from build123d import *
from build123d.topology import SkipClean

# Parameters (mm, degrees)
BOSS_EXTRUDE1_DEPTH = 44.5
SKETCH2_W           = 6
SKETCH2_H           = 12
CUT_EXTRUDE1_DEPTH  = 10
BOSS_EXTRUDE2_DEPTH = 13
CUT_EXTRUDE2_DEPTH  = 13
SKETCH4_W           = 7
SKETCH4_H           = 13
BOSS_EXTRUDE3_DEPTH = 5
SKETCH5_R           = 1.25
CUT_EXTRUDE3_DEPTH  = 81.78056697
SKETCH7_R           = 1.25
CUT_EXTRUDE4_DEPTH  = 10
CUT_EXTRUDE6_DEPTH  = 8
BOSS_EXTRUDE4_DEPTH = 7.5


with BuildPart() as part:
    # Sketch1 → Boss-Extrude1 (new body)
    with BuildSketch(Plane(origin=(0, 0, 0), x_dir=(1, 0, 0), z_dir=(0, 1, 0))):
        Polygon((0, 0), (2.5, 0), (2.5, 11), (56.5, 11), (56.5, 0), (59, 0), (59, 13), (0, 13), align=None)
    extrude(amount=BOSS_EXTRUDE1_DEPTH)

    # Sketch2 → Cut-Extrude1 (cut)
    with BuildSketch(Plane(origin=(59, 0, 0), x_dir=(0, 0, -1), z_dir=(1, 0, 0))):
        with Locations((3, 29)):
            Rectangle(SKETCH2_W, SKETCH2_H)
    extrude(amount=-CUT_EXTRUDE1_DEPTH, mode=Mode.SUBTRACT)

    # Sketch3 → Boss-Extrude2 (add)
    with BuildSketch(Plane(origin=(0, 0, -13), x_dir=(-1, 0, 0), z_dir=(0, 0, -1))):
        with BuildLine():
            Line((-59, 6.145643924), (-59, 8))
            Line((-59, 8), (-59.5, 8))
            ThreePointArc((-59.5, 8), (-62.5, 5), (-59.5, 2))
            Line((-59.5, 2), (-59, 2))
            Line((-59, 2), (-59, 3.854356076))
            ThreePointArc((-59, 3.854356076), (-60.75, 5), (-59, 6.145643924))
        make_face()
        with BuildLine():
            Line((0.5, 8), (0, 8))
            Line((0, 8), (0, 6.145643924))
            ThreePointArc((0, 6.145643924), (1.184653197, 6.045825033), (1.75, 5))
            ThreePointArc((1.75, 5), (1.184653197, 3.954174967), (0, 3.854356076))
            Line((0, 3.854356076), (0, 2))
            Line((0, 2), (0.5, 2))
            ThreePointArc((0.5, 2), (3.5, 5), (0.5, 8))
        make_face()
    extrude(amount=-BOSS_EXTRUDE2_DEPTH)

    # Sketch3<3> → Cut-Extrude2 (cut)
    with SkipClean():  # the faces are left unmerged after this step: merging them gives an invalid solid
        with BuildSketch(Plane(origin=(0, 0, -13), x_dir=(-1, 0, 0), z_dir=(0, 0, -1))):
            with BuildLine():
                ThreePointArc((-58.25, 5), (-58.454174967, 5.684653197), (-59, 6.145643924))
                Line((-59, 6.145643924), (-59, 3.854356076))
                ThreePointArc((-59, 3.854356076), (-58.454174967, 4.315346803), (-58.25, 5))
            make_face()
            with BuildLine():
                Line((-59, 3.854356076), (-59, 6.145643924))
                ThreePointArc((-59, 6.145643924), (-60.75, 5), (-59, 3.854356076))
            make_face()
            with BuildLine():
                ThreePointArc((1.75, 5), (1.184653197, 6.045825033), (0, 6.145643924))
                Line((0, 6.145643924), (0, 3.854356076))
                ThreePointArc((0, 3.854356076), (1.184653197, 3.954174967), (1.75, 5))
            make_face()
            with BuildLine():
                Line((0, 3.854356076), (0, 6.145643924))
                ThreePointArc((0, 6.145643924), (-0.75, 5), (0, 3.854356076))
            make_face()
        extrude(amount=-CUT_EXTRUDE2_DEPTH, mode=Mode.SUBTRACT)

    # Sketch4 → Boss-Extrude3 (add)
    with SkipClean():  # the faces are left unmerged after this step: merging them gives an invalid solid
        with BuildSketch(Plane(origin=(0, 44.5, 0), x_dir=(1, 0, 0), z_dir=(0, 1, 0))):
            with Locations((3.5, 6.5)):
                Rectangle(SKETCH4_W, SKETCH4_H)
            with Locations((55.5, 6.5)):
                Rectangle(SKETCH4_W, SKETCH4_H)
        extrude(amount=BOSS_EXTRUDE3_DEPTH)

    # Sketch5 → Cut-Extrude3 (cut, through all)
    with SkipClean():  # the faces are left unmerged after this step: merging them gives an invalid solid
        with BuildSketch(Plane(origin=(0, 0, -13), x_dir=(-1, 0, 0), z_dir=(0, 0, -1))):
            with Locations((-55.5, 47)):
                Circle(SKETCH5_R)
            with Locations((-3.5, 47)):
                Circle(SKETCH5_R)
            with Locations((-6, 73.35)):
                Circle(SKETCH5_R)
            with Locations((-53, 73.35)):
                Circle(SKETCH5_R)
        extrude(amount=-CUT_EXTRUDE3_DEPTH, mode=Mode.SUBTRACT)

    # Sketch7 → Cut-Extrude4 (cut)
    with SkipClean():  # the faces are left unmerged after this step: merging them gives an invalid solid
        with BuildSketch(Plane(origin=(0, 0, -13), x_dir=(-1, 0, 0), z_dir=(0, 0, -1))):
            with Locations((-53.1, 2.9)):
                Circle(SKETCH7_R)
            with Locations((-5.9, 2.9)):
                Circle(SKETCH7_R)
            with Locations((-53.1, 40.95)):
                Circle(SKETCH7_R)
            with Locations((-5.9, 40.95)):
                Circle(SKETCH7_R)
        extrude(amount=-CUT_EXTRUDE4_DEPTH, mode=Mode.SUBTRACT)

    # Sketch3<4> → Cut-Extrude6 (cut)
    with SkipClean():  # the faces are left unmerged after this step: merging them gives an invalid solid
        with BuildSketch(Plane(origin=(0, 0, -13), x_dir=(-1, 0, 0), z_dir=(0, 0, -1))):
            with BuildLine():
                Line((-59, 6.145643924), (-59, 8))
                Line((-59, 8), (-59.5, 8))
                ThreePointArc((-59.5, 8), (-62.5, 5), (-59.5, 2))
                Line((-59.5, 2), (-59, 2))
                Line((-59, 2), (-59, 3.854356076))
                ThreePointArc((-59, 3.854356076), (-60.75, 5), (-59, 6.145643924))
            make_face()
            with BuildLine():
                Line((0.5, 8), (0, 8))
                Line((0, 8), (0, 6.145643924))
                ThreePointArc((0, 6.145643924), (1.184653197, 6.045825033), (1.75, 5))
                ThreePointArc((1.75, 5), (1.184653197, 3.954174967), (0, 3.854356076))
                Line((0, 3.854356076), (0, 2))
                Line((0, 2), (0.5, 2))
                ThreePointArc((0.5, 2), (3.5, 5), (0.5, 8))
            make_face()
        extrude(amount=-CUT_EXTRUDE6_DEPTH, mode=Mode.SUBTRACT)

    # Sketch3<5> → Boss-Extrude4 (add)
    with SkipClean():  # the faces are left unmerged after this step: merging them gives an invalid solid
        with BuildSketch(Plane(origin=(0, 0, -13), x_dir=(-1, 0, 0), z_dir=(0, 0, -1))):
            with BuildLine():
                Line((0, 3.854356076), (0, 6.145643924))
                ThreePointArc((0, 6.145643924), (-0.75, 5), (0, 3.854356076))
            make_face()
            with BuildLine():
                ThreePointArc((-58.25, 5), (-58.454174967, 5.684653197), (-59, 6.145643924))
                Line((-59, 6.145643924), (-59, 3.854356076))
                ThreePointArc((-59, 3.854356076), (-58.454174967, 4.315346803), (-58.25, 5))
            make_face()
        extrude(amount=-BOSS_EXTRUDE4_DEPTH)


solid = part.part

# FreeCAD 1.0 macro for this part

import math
import FreeCAD as App
import Part
import Sketcher

V = App.Vector


def add_polygon(sketch, points):
    """Adds a closed chain of lines whose ends are joined by coincident constraints."""
    first, n = sketch.GeometryCount, len(points)
    for a, b in zip(points, points[1:] + points[:1]):
        sketch.addGeometry(Part.LineSegment(App.Vector(*a, 0), App.Vector(*b, 0)), False)
    for i in range(n):
        sketch.addConstraint(Sketcher.Constraint("Coincident", first + i, 2, first + (i + 1) % n, 1))

doc = App.newDocument("Part")
body = doc.addObject("PartDesign::Body", "Body")

# Sketch on XZ plane
sketch1 = body.newObject("Sketcher::SketchObject", "Sketch")
sketch1.AttachmentSupport = (doc.getObject("XZ_Plane"), [""])
sketch1.MapMode = "FlatFace"
add_polygon(sketch1, [(0, 0), (2.5, 0), (2.5, -11), (56.5, -11), (56.5, 0), (59, 0), (59, -13), (0, -13)])  # lines 0-7
sketch1.addConstraint([
    Sketcher.Constraint("Horizontal", 0),
    Sketcher.Constraint("Vertical", 1),
    Sketcher.Constraint("Horizontal", 2),
    Sketcher.Constraint("Vertical", 3),
    Sketcher.Constraint("Horizontal", 4),
    Sketcher.Constraint("Vertical", 5),
    Sketcher.Constraint("Horizontal", 6),
    Sketcher.Constraint("Vertical", 7),
    Sketcher.Constraint("Coincident", 7, 2, -1, 1),
    Sketcher.Constraint("PointOnObject", 3, 2, -1),
    Sketcher.Constraint("Equal", 0, 4),
    Sketcher.Constraint("DistanceX", 2, 1, 2, 2, 54.0),
    Sketcher.Constraint("DistanceX", 6, 2, 6, 1, 59.0),
    Sketcher.Constraint("DistanceY", 1, 2, 1, 1, 11.0),
    Sketcher.Constraint("DistanceY", 5, 2, 5, 1, 13.0),
])
pad1 = body.newObject("PartDesign::Pad", "Pad")
pad1.Profile = sketch1
pad1.Length = 44.5
pad1.Reversed = True

# Sketch on YZ plane
sketch2 = body.newObject("Sketcher::SketchObject", "Sketch001")
sketch2.AttachmentSupport = (doc.getObject("YZ_Plane"), [""])
sketch2.MapMode = "FlatFace"
sketch2.AttachmentOffset = App.Placement(V(0, 0, 59), App.Rotation())
add_polygon(sketch2, [(35, 0), (23, 0), (23, -6), (35, -6)])  # lines 0-3
sketch2.addConstraint([
    Sketcher.Constraint("Horizontal", 0),
    Sketcher.Constraint("Vertical", 1),
    Sketcher.Constraint("Horizontal", 2),
    Sketcher.Constraint("Vertical", 3),
    Sketcher.Constraint("PointOnObject", 0, 2, -1),
    Sketcher.Constraint("DistanceX", 0, 2, 0, 1, 12.0),
    Sketcher.Constraint("DistanceY", 1, 2, 1, 1, 6.0),
    Sketcher.Constraint("DistanceX", -1, 1, 0, 2, 23.0),
])
pocket1 = body.newObject("PartDesign::Pocket", "Pocket")
pocket1.Profile = sketch2
pocket1.Length = 10

# Sketch on XY plane
sketch3 = body.newObject("Sketcher::SketchObject", "Sketch002")
sketch3.AttachmentSupport = (doc.getObject("XY_Plane"), [""])
sketch3.MapMode = "FlatFace"
sketch3.AttachmentOffset = App.Placement(V(0, 0, -13), App.Rotation())
sketch3.addGeometry([
    Part.LineSegment(V(59, 6.1, 0), V(59, 8, 0)),  # 0
    Part.LineSegment(V(59, 8, 0), V(59.5, 8, 0)),  # 1
    Part.ArcOfCircle(Part.Circle(V(59.5, 5, 0), V(0, 0, 1), 3), math.radians(-90), math.radians(90)),  # 2
    Part.LineSegment(V(59.5, 2, 0), V(59, 2, 0)),  # 3
    Part.LineSegment(V(59, 2, 0), V(59, 3.9, 0)),  # 4
    Part.ArcOfCircle(Part.Circle(V(59.5, 5, 0), V(0, 0, 1), 1.2), math.radians(-114), math.radians(114)),  # 5
    Part.LineSegment(V(-0.5, 8, 0), V(0, 8, 0)),  # 6
    Part.LineSegment(V(0, 8, 0), V(0, 6.1, 0)),  # 7
    Part.ArcOfCircle(Part.Circle(V(-0.5, 5, 0), V(0, 0, 1), 1.2), math.radians(66), math.radians(180)),  # 8
    Part.ArcOfCircle(Part.Circle(V(-0.5, 5, 0), V(0, 0, 1), 1.2), math.radians(180), math.radians(294)),  # 9
    Part.LineSegment(V(0, 3.9, 0), V(0, 2, 0)),  # 10
    Part.LineSegment(V(0, 2, 0), V(-0.5, 2, 0)),  # 11
    Part.ArcOfCircle(Part.Circle(V(-0.5, 5, 0), V(0, 0, 1), 3), math.radians(90), math.radians(270)),  # 12
], False)
sketch3.addConstraint([
    Sketcher.Constraint("Coincident", 0, 2, 1, 1),
    Sketcher.Constraint("Tangent", 1, 2, 2, 2),
    Sketcher.Constraint("Tangent", 2, 1, 3, 1),
    Sketcher.Constraint("Coincident", 3, 2, 4, 1),
    Sketcher.Constraint("Coincident", 4, 2, 5, 1),
    Sketcher.Constraint("Coincident", 5, 2, 0, 1),
    Sketcher.Constraint("Coincident", 6, 2, 7, 1),
    Sketcher.Constraint("Coincident", 7, 2, 8, 1),
    Sketcher.Constraint("Tangent", 8, 2, 9, 1),
    Sketcher.Constraint("Coincident", 9, 2, 10, 1),
    Sketcher.Constraint("Coincident", 10, 2, 11, 1),
    Sketcher.Constraint("Tangent", 11, 2, 12, 2),
    Sketcher.Constraint("Tangent", 12, 1, 6, 1),
    Sketcher.Constraint("Vertical", 0),
    Sketcher.Constraint("Horizontal", 1),
    Sketcher.Constraint("Horizontal", 3),
    Sketcher.Constraint("Vertical", 4),
    Sketcher.Constraint("Horizontal", 6),
    Sketcher.Constraint("Vertical", 7),
    Sketcher.Constraint("Vertical", 10),
    Sketcher.Constraint("Horizontal", 11),
    Sketcher.Constraint("Coincident", 5, 3, 2, 3),
    Sketcher.Constraint("Coincident", 12, 3, 8, 3),
    Sketcher.Constraint("Equal", 5, 8),
    Sketcher.Constraint("Equal", 8, 9),
    Sketcher.Constraint("Equal", 2, 12),
    Sketcher.Constraint("PointOnObject", 6, 2, -2),
    Sketcher.Constraint("PointOnObject", 9, 2, -2),
    Sketcher.Constraint("Horizontal", 5, 3, 8, 3),
    Sketcher.Constraint("Horizontal", 5, 2, 7, 2),
    Sketcher.Constraint("Horizontal", 12, 3, 8, 2),
    Sketcher.Constraint("Horizontal", 4, 2, 9, 2),
    Sketcher.Constraint("Radius", 2, 3.0),
    Sketcher.Constraint("Radius", 5, 1.25),
    Sketcher.Constraint("DistanceX", 1, 1, 1, 2, 0.5),
    Sketcher.Constraint("DistanceY", -1, 1, 2, 3, 5.0),
    Sketcher.Constraint("DistanceX", -1, 1, 0, 2, 59.0),
])
pad2 = body.newObject("PartDesign::Pad", "Pad001")
pad2.Profile = sketch3
pad2.Length = 13

# Sketch on XY plane
sketch4 = body.newObject("Sketcher::SketchObject", "Sketch003")
sketch4.AttachmentSupport = (doc.getObject("XY_Plane"), [""])
sketch4.MapMode = "FlatFace"
sketch4.AttachmentOffset = App.Placement(V(0, 0, -13), App.Rotation())
sketch4.addGeometry([
    Part.ArcOfCircle(Part.Circle(V(59.5, 5, 0), V(0, 0, 1), 1.3), math.radians(114), math.radians(180)),  # 0
    Part.LineSegment(V(59, 6.1, 0), V(59, 3.9, 0)),  # 1
    Part.ArcOfCircle(Part.Circle(V(59.5, 5, 0), V(0, 0, 1), 1.3), math.radians(180), math.radians(246)),  # 2
    Part.LineSegment(V(59, 3.9, 0), V(59, 6.1, 0)),  # 3
    Part.ArcOfCircle(Part.Circle(V(59.5, 5, 0), V(0, 0, 1), 1.2), math.radians(-114), math.radians(114)),  # 4
    Part.ArcOfCircle(Part.Circle(V(-0.5, 5, 0), V(0, 0, 1), 1.2), math.radians(66), math.radians(180)),  # 5
    Part.LineSegment(V(0, 6.1, 0), V(0, 3.9, 0)),  # 6
    Part.ArcOfCircle(Part.Circle(V(-0.5, 5, 0), V(0, 0, 1), 1.2), math.radians(180), math.radians(294)),  # 7
    Part.LineSegment(V(0, 3.9, 0), V(0, 6.1, 0)),  # 8
    Part.ArcOfCircle(Part.Circle(V(-0.5, 5, 0), V(0, 0, 1), 1.2), math.radians(-66), math.radians(66)),  # 9
], False)
sketch4.addConstraint([
    Sketcher.Constraint("Coincident", 0, 1, 1, 1),
    Sketcher.Constraint("Coincident", 1, 2, 2, 2),
    Sketcher.Constraint("Tangent", 2, 1, 0, 2),
    Sketcher.Constraint("Coincident", 3, 1, 4, 1),
    Sketcher.Constraint("Coincident", 4, 2, 3, 2),
    Sketcher.Constraint("Coincident", 5, 1, 6, 1),
    Sketcher.Constraint("Coincident", 6, 2, 7, 2),
    Sketcher.Constraint("Tangent", 7, 1, 5, 2),
    Sketcher.Constraint("Coincident", 8, 1, 9, 1),
    Sketcher.Constraint("Coincident", 9, 2, 8, 2),
    Sketcher.Constraint("Vertical", 1),
    Sketcher.Constraint("Vertical", 3),
    Sketcher.Constraint("Vertical", 6),
    Sketcher.Constraint("Vertical", 8),
    Sketcher.Constraint("Coincident", 4, 3, 0, 3),
    Sketcher.Constraint("Coincident", 9, 3, 5, 3),
    Sketcher.Constraint("Coincident", 3, 1, 1, 2),
    Sketcher.Constraint("Coincident", 8, 1, 6, 2),
    Sketcher.Constraint("Equal", 0, 2),
    Sketcher.Constraint("Equal", 4, 5),
    Sketcher.Constraint("Equal", 5, 7),
    Sketcher.Constraint("PointOnObject", 5, 1, -2),
    Sketcher.Constraint("Horizontal", 4, 3, 5, 3),
    Sketcher.Constraint("Horizontal", 9, 3, 2, 1),
    Sketcher.Constraint("Horizontal", 4, 2, 5, 1),
    Sketcher.Constraint("Horizontal", 2, 1, 7, 1),
    Sketcher.Constraint("Radius", 0, 1.25),
    Sketcher.Constraint("DistanceY", -1, 1, 0, 3, 5.0),
    Sketcher.Constraint("DistanceX", -1, 1, 0, 1, 59.0),
    Sketcher.Constraint("DistanceX", 5, 3, 4, 3, 60.0),
])
pocket2 = body.newObject("PartDesign::Pocket", "Pocket001")
pocket2.Profile = sketch4
pocket2.Length = 13
pocket2.Reversed = True

# Sketch on XZ plane
sketch5 = body.newObject("Sketcher::SketchObject", "Sketch004")
sketch5.AttachmentSupport = (doc.getObject("XZ_Plane"), [""])
sketch5.MapMode = "FlatFace"
sketch5.AttachmentOffset = App.Placement(V(0, 0, -44.5), App.Rotation())
add_polygon(sketch5, [(0, -13), (0, 0), (7, 0), (7, -13)])  # lines 0-3
add_polygon(sketch5, [(52, -13), (52, 0), (59, 0), (59, -13)])  # lines 4-7
sketch5.addConstraint([
    Sketcher.Constraint("Vertical", 0),
    Sketcher.Constraint("Horizontal", 1),
    Sketcher.Constraint("Vertical", 2),
    Sketcher.Constraint("Horizontal", 3),
    Sketcher.Constraint("Vertical", 4),
    Sketcher.Constraint("Horizontal", 5),
    Sketcher.Constraint("Vertical", 6),
    Sketcher.Constraint("Horizontal", 7),
    Sketcher.Constraint("Coincident", 0, 2, -1, 1),
    Sketcher.Constraint("PointOnObject", 4, 2, -1),
    Sketcher.Constraint("Horizontal", 3, 2, 6, 2),
    Sketcher.Constraint("Equal", 3, 5),
    Sketcher.Constraint("DistanceX", 1, 1, 1, 2, 7.0),
    Sketcher.Constraint("DistanceY", 0, 1, 0, 2, 13.0),
    Sketcher.Constraint("DistanceX", -1, 1, 4, 2, 52.0),
])
pad3 = body.newObject("PartDesign::Pad", "Pad002")
pad3.Profile = sketch5
pad3.Length = 5
pad3.Reversed = True

# Sketch on XY plane
sketch6 = body.newObject("Sketcher::SketchObject", "Sketch005")
sketch6.AttachmentSupport = (doc.getObject("XY_Plane"), [""])
sketch6.MapMode = "FlatFace"
sketch6.AttachmentOffset = App.Placement(V(0, 0, -13), App.Rotation())
sketch6.addGeometry([
    Part.Circle(V(55.5, 47, 0), V(0, 0, 1), 1.2),
    Part.Circle(V(3.5, 47, 0), V(0, 0, 1), 1.2),
    Part.Circle(V(6, 73.3, 0), V(0, 0, 1), 1.2),
    Part.Circle(V(53, 73.3, 0), V(0, 0, 1), 1.2),
], False)
sketch6.addConstraint([
    Sketcher.Constraint("Equal", 0, 1),
    Sketcher.Constraint("Equal", 1, 2),
    Sketcher.Constraint("Equal", 2, 3),
    Sketcher.Constraint("Horizontal", 0, 3, 1, 3),
    Sketcher.Constraint("Horizontal", 2, 3, 3, 3),
    Sketcher.Constraint("Diameter", 0, 2.5),
    Sketcher.Constraint("DistanceY", -1, 1, 0, 3, 47.0),
    Sketcher.Constraint("DistanceX", -1, 1, 2, 3, 6.0),
    Sketcher.Constraint("DistanceX", -1, 1, 3, 3, 53.0),
    Sketcher.Constraint("DistanceX", 1, 3, 0, 3, 52.0),
    Sketcher.Constraint("DistanceX", -1, 1, 0, 3, 55.5),
    Sketcher.Constraint("DistanceY", -1, 1, 2, 3, 73.35),
])
pocket3 = body.newObject("PartDesign::Pocket", "Pocket002")
pocket3.Profile = sketch6
pocket3.Type = "ThroughAll"
pocket3.Reversed = True

# Sketch on XY plane
sketch7 = body.newObject("Sketcher::SketchObject", "Sketch006")
sketch7.AttachmentSupport = (doc.getObject("XY_Plane"), [""])
sketch7.MapMode = "FlatFace"
sketch7.AttachmentOffset = App.Placement(V(0, 0, -13), App.Rotation())
sketch7.addGeometry([
    Part.Circle(V(53.1, 2.9, 0), V(0, 0, 1), 1.2),
    Part.Circle(V(5.9, 2.9, 0), V(0, 0, 1), 1.2),
    Part.Circle(V(53.1, 41, 0), V(0, 0, 1), 1.2),
    Part.Circle(V(5.9, 41, 0), V(0, 0, 1), 1.2),
], False)
sketch7.addConstraint([
    Sketcher.Constraint("Equal", 0, 1),
    Sketcher.Constraint("Equal", 1, 2),
    Sketcher.Constraint("Equal", 2, 3),
    Sketcher.Constraint("Horizontal", 0, 3, 1, 3),
    Sketcher.Constraint("Horizontal", 2, 3, 3, 3),
    Sketcher.Constraint("Vertical", 0, 3, 2, 3),
    Sketcher.Constraint("Vertical", 1, 3, 3, 3),
    Sketcher.Constraint("Diameter", 0, 2.5),
    Sketcher.Constraint("DistanceX", -1, 1, 0, 3, 53.1),
    Sketcher.Constraint("DistanceY", -1, 1, 0, 3, 2.9),
    Sketcher.Constraint("DistanceX", -1, 1, 1, 3, 5.9),
    Sketcher.Constraint("DistanceY", -1, 1, 2, 3, 40.95),
])
pocket4 = body.newObject("PartDesign::Pocket", "Pocket003")
pocket4.Profile = sketch7
pocket4.Length = 10
pocket4.Reversed = True

# Sketch on XY plane
sketch8 = body.newObject("Sketcher::SketchObject", "Sketch007")
sketch8.AttachmentSupport = (doc.getObject("XY_Plane"), [""])
sketch8.MapMode = "FlatFace"
sketch8.AttachmentOffset = App.Placement(V(0, 0, -13), App.Rotation())
sketch8.addGeometry([
    Part.LineSegment(V(59, 6.1, 0), V(59, 8, 0)),  # 0
    Part.LineSegment(V(59, 8, 0), V(59.5, 8, 0)),  # 1
    Part.ArcOfCircle(Part.Circle(V(59.5, 5, 0), V(0, 0, 1), 3), math.radians(-90), math.radians(90)),  # 2
    Part.LineSegment(V(59.5, 2, 0), V(59, 2, 0)),  # 3
    Part.LineSegment(V(59, 2, 0), V(59, 3.9, 0)),  # 4
    Part.ArcOfCircle(Part.Circle(V(59.5, 5, 0), V(0, 0, 1), 1.2), math.radians(-114), math.radians(114)),  # 5
    Part.LineSegment(V(-0.5, 8, 0), V(0, 8, 0)),  # 6
    Part.LineSegment(V(0, 8, 0), V(0, 6.1, 0)),  # 7
    Part.ArcOfCircle(Part.Circle(V(-0.5, 5, 0), V(0, 0, 1), 1.2), math.radians(66), math.radians(180)),  # 8
    Part.ArcOfCircle(Part.Circle(V(-0.5, 5, 0), V(0, 0, 1), 1.2), math.radians(180), math.radians(294)),  # 9
    Part.LineSegment(V(0, 3.9, 0), V(0, 2, 0)),  # 10
    Part.LineSegment(V(0, 2, 0), V(-0.5, 2, 0)),  # 11
    Part.ArcOfCircle(Part.Circle(V(-0.5, 5, 0), V(0, 0, 1), 3), math.radians(90), math.radians(270)),  # 12
], False)
sketch8.addConstraint([
    Sketcher.Constraint("Coincident", 0, 2, 1, 1),
    Sketcher.Constraint("Tangent", 1, 2, 2, 2),
    Sketcher.Constraint("Tangent", 2, 1, 3, 1),
    Sketcher.Constraint("Coincident", 3, 2, 4, 1),
    Sketcher.Constraint("Coincident", 4, 2, 5, 1),
    Sketcher.Constraint("Coincident", 5, 2, 0, 1),
    Sketcher.Constraint("Coincident", 6, 2, 7, 1),
    Sketcher.Constraint("Coincident", 7, 2, 8, 1),
    Sketcher.Constraint("Tangent", 8, 2, 9, 1),
    Sketcher.Constraint("Coincident", 9, 2, 10, 1),
    Sketcher.Constraint("Coincident", 10, 2, 11, 1),
    Sketcher.Constraint("Tangent", 11, 2, 12, 2),
    Sketcher.Constraint("Tangent", 12, 1, 6, 1),
    Sketcher.Constraint("Vertical", 0),
    Sketcher.Constraint("Horizontal", 1),
    Sketcher.Constraint("Horizontal", 3),
    Sketcher.Constraint("Vertical", 4),
    Sketcher.Constraint("Horizontal", 6),
    Sketcher.Constraint("Vertical", 7),
    Sketcher.Constraint("Vertical", 10),
    Sketcher.Constraint("Horizontal", 11),
    Sketcher.Constraint("Coincident", 5, 3, 2, 3),
    Sketcher.Constraint("Coincident", 12, 3, 8, 3),
    Sketcher.Constraint("Equal", 5, 8),
    Sketcher.Constraint("Equal", 8, 9),
    Sketcher.Constraint("Equal", 2, 12),
    Sketcher.Constraint("PointOnObject", 6, 2, -2),
    Sketcher.Constraint("PointOnObject", 9, 2, -2),
    Sketcher.Constraint("Horizontal", 5, 3, 8, 3),
    Sketcher.Constraint("Horizontal", 5, 2, 7, 2),
    Sketcher.Constraint("Horizontal", 12, 3, 8, 2),
    Sketcher.Constraint("Horizontal", 4, 2, 9, 2),
    Sketcher.Constraint("Radius", 2, 3.0),
    Sketcher.Constraint("Radius", 5, 1.25),
    Sketcher.Constraint("DistanceX", 1, 1, 1, 2, 0.5),
    Sketcher.Constraint("DistanceY", -1, 1, 2, 3, 5.0),
    Sketcher.Constraint("DistanceX", -1, 1, 0, 2, 59.0),
])
pocket5 = body.newObject("PartDesign::Pocket", "Pocket004")
pocket5.Profile = sketch8
pocket5.Length = 8
pocket5.Reversed = True

# Sketch on XY plane
sketch9 = body.newObject("Sketcher::SketchObject", "Sketch008")
sketch9.AttachmentSupport = (doc.getObject("XY_Plane"), [""])
sketch9.MapMode = "FlatFace"
sketch9.AttachmentOffset = App.Placement(V(0, 0, -13), App.Rotation())
sketch9.addGeometry([
    Part.LineSegment(V(0, 3.9, 0), V(0, 6.1, 0)),  # 0
    Part.ArcOfCircle(Part.Circle(V(-0.5, 5, 0), V(0, 0, 1), 1.2), math.radians(-66), math.radians(66)),  # 1
    Part.ArcOfCircle(Part.Circle(V(59.5, 5, 0), V(0, 0, 1), 1.3), math.radians(114), math.radians(180)),  # 2
    Part.LineSegment(V(59, 6.1, 0), V(59, 3.9, 0)),  # 3
    Part.ArcOfCircle(Part.Circle(V(59.5, 5, 0), V(0, 0, 1), 1.3), math.radians(180), math.radians(246)),  # 4
], False)
sketch9.addConstraint([
    Sketcher.Constraint("Coincident", 0, 1, 1, 1),
    Sketcher.Constraint("Coincident", 1, 2, 0, 2),
    Sketcher.Constraint("Coincident", 2, 1, 3, 1),
    Sketcher.Constraint("Coincident", 3, 2, 4, 2),
    Sketcher.Constraint("Tangent", 4, 1, 2, 2),
    Sketcher.Constraint("Vertical", 0),
    Sketcher.Constraint("Vertical", 3),
    Sketcher.Constraint("Equal", 1, 2),
    Sketcher.Constraint("Equal", 2, 4),
    Sketcher.Constraint("PointOnObject", 0, 1, -2),
    Sketcher.Constraint("Horizontal", 1, 3, 2, 3),
    Sketcher.Constraint("Horizontal", 1, 2, 2, 1),
    Sketcher.Constraint("Horizontal", 2, 3, 4, 1),
    Sketcher.Constraint("Radius", 1, 1.25),
    Sketcher.Constraint("DistanceY", -1, 1, 1, 3, 5.0),
    Sketcher.Constraint("DistanceX", -1, 1, 2, 1, 59.0),
    Sketcher.Constraint("DistanceX", 1, 3, 2, 3, 60.0),
])
pad4 = body.newObject("PartDesign::Pad", "Pad003")
pad4.Profile = sketch9
pad4.Length = 7.5

doc.recompute()
